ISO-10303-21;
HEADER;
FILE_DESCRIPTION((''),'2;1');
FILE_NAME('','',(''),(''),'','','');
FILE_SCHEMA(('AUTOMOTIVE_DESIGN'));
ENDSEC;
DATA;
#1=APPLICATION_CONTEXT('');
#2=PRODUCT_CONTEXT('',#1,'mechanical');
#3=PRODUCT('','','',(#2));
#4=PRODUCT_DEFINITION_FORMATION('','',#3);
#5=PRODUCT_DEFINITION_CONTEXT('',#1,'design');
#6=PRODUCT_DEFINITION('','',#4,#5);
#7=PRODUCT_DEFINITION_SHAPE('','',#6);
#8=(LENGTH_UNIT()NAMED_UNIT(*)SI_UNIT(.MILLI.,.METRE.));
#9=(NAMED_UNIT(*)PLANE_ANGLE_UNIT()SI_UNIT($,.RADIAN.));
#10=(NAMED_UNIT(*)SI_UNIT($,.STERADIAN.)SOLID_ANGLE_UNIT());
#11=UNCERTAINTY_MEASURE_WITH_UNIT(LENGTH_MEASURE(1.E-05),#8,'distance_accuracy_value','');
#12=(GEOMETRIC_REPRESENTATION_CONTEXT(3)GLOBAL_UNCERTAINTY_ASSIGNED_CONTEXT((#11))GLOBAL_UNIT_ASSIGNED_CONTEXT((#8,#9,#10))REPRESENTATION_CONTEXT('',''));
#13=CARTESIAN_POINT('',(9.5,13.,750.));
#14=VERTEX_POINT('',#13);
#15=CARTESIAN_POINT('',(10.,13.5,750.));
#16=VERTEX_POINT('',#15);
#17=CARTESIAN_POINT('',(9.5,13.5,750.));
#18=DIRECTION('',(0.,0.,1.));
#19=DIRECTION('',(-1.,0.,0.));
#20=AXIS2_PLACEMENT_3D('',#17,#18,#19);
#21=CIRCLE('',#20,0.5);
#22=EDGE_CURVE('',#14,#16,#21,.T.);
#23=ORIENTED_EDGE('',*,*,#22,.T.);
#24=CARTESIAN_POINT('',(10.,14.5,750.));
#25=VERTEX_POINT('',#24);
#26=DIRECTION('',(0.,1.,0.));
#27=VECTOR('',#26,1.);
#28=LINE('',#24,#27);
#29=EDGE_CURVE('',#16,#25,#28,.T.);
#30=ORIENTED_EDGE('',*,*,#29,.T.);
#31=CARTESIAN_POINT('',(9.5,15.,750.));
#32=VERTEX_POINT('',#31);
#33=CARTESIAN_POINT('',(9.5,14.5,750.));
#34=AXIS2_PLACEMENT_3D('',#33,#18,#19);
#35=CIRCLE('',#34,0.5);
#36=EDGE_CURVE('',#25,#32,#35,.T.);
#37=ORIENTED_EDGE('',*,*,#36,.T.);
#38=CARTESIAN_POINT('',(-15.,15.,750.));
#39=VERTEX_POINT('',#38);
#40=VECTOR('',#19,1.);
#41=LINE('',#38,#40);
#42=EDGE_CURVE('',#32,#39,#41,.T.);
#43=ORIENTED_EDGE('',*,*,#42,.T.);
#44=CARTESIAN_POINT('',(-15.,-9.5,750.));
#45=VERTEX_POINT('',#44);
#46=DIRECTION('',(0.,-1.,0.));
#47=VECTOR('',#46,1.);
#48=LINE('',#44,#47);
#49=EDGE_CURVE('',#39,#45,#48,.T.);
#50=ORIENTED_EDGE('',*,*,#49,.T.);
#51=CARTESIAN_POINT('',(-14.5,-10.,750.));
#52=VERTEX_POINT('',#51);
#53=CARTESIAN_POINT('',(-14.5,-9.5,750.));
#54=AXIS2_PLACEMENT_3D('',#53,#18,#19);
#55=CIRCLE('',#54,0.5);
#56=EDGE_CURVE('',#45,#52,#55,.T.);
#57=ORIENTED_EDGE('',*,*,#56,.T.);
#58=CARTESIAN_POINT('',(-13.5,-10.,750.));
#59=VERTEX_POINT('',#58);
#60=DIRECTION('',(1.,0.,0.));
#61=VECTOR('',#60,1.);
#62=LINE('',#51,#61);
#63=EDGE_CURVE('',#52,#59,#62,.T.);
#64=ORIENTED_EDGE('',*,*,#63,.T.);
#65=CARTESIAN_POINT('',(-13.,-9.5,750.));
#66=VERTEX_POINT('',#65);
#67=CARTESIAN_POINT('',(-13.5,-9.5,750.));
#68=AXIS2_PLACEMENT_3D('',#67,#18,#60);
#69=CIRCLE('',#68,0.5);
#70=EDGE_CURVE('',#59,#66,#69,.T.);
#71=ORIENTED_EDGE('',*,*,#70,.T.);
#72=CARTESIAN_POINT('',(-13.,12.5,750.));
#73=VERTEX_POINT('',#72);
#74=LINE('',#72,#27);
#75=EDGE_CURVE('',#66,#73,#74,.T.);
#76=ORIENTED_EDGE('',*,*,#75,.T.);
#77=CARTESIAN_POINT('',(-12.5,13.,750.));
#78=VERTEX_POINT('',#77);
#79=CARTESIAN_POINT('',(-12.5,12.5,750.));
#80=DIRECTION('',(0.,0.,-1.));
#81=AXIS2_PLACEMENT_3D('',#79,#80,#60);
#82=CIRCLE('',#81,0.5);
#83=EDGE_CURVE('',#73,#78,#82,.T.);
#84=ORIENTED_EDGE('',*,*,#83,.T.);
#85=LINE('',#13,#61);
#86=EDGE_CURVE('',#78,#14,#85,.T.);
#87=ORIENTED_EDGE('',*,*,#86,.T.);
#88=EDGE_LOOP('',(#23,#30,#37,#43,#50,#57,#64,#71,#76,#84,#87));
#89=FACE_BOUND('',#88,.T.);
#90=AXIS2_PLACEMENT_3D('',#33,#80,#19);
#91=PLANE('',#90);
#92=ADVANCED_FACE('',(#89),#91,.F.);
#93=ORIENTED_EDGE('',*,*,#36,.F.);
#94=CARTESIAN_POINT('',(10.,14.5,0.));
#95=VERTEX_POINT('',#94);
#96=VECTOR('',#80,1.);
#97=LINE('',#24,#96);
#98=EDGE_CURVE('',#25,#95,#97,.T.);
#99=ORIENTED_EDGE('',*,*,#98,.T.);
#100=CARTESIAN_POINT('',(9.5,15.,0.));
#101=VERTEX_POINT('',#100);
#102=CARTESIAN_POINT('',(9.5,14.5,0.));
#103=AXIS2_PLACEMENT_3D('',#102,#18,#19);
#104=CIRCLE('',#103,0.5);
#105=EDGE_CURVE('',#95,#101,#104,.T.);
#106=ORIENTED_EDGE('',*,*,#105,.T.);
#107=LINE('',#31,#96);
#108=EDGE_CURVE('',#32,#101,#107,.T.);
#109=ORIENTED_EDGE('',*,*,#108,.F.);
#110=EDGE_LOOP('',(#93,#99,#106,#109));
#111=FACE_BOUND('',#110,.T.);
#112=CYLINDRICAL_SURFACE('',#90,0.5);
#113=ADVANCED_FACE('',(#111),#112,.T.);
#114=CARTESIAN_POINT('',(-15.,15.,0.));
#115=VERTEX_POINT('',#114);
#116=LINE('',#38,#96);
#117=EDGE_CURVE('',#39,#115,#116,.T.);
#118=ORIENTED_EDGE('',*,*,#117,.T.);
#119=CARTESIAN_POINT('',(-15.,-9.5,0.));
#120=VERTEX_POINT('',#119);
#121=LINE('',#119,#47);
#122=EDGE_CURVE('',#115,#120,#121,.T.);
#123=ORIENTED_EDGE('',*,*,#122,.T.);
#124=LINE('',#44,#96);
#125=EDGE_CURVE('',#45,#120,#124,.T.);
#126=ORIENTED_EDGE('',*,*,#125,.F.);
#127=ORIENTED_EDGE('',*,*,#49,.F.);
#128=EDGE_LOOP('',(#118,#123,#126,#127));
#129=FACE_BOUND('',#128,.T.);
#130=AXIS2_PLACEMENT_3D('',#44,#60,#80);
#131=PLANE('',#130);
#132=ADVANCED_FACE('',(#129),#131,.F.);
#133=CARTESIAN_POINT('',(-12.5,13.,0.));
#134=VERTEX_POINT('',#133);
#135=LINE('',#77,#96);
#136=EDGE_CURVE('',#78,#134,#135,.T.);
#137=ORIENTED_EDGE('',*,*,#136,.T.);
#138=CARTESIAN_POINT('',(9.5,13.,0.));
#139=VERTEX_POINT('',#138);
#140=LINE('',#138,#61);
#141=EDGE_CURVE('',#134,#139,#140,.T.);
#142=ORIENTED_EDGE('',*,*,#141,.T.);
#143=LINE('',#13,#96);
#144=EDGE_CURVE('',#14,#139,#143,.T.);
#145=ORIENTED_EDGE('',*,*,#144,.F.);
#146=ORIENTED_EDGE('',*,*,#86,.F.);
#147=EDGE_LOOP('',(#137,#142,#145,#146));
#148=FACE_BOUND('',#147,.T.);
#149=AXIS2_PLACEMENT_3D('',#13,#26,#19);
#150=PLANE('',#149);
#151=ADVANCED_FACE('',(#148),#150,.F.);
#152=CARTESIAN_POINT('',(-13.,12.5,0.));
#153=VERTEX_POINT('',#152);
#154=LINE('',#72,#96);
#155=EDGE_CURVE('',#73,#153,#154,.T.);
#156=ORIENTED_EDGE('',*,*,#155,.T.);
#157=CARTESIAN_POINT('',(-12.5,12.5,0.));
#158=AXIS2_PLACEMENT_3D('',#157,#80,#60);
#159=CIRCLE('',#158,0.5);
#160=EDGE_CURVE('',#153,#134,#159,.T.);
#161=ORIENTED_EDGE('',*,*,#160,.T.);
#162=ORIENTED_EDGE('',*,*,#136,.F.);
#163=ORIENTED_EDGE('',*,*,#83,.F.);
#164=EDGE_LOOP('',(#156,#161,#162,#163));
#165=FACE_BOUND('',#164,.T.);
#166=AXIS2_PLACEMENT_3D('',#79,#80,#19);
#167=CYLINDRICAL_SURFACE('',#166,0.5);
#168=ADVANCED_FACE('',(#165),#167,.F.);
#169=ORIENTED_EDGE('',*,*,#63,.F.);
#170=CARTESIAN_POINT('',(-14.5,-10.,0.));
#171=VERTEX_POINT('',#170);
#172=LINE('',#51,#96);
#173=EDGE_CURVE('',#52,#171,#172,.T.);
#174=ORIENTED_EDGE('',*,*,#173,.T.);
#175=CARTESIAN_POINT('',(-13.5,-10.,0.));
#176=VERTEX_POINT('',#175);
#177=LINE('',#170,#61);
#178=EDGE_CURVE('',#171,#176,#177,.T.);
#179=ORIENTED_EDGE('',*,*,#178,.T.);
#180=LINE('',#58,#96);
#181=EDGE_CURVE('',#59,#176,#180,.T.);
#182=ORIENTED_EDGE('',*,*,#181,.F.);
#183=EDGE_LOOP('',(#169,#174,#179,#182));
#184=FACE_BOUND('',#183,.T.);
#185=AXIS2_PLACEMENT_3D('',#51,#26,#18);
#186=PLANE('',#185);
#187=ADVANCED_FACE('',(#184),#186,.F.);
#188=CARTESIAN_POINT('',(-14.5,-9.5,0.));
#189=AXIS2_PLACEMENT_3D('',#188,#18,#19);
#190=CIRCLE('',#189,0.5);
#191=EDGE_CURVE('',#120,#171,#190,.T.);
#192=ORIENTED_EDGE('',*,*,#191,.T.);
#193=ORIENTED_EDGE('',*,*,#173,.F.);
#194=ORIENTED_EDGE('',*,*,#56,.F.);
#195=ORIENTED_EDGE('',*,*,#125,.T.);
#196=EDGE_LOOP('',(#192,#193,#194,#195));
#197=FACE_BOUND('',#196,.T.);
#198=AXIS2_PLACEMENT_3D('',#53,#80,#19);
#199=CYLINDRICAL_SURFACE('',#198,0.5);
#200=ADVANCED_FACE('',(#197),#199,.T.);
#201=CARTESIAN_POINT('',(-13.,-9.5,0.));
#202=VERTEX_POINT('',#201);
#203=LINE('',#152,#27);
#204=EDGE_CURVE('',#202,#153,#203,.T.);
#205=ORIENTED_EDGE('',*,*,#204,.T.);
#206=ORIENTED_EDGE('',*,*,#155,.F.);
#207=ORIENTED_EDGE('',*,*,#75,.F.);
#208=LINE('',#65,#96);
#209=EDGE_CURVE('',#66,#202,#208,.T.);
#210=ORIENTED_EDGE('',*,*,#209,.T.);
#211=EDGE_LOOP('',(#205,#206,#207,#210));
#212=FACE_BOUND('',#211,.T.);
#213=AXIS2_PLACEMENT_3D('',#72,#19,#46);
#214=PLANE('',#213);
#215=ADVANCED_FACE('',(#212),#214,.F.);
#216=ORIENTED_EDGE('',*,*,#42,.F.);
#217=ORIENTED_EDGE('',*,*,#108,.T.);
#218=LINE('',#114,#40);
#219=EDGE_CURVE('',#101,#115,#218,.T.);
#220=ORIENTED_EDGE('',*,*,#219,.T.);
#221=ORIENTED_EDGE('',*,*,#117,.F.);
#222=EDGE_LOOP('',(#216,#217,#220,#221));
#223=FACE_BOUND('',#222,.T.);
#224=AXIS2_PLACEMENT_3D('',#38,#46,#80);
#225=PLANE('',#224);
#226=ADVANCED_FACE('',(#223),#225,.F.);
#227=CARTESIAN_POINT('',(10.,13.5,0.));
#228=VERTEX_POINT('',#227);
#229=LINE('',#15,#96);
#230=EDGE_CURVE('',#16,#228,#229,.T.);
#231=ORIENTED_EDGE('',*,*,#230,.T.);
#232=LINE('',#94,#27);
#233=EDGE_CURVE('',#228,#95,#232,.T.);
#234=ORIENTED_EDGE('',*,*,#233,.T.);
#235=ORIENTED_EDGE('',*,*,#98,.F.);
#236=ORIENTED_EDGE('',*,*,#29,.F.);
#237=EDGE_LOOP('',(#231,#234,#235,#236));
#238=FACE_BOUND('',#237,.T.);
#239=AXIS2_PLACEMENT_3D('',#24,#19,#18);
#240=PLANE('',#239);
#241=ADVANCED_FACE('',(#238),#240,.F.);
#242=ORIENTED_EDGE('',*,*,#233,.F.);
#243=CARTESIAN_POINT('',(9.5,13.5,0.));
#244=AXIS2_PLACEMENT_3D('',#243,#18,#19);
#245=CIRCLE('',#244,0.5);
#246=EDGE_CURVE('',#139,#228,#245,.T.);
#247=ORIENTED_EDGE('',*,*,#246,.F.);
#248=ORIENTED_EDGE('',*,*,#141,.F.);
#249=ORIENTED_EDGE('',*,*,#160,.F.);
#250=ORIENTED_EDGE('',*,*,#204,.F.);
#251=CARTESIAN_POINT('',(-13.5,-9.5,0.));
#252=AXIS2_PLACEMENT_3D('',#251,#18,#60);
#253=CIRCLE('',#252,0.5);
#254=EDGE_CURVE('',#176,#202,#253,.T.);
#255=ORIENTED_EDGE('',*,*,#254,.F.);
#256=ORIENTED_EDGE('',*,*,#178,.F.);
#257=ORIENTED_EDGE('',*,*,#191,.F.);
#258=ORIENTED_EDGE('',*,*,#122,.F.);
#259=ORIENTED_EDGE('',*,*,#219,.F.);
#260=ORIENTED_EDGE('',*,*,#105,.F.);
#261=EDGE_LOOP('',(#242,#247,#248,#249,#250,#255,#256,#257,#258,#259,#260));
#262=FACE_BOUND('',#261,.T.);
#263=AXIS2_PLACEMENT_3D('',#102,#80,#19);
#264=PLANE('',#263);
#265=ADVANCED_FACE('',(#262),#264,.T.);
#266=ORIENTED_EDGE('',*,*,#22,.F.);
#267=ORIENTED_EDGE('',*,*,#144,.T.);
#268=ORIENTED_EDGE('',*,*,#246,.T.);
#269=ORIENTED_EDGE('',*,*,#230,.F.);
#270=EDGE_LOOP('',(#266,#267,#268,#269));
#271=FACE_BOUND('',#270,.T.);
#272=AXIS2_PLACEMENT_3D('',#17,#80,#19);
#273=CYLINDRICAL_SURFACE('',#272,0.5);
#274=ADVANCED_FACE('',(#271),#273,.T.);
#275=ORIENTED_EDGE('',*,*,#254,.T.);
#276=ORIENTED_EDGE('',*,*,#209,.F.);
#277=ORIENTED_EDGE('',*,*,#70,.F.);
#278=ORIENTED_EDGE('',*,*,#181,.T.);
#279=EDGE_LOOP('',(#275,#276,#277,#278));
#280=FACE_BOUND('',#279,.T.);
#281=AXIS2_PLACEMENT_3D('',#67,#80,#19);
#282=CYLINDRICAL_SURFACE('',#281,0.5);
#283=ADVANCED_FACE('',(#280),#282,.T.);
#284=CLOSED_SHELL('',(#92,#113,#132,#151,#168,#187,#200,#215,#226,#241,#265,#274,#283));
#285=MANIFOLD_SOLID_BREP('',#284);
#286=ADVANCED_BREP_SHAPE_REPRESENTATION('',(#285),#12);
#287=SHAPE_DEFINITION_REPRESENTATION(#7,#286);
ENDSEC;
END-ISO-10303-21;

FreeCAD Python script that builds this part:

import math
import FreeCAD as App
import Part
import Sketcher
from FreeCAD import Vector

doc = App.newDocument("Part")
body = doc.addObject("PartDesign::Body", "Body")

# Sketch on XY plane
sketch1 = body.newObject("Sketcher::SketchObject", "Sketch")
sketch1.AttachmentSupport = (doc.getObject("XY_Plane"), [""])
sketch1.MapMode = "FlatFace"
sketch1.addGeometry([
    Part.LineSegment(Vector(10, 13.5, 0), Vector(10, 14.5, 0)),  # 0
    Part.ArcOfCircle(Part.Circle(Vector(9.5, 14.5, 0), Vector(0, 0, 1), 0.5), math.radians(0), math.radians(90)),  # 1
    Part.LineSegment(Vector(9.5, 15, 0), Vector(-15, 15, 0)),  # 2
    Part.LineSegment(Vector(-15, 15, 0), Vector(-15, -9.5, 0)),  # 3
    Part.ArcOfCircle(Part.Circle(Vector(-14.5, -9.5, 0), Vector(0, 0, 1), 0.5), math.radians(180), math.radians(270)),  # 4
    Part.LineSegment(Vector(-14.5, -10, 0), Vector(-13.5, -10, 0)),  # 5
    Part.ArcOfCircle(Part.Circle(Vector(-13.5, -9.5, 0), Vector(0, 0, 1), 0.5), math.radians(-90), math.radians(0)),  # 6
    Part.LineSegment(Vector(-13, -9.5, 0), Vector(-13, 12.5, 0)),  # 7
    Part.ArcOfCircle(Part.Circle(Vector(-12.5, 12.5, 0), Vector(0, 0, 1), 0.5), math.radians(90), math.radians(180)),  # 8
    Part.LineSegment(Vector(-12.5, 13, 0), Vector(9.5, 13, 0)),  # 9
    Part.ArcOfCircle(Part.Circle(Vector(9.5, 13.5, 0), Vector(0, 0, 1), 0.5), math.radians(-90), math.radians(0)),  # 10
], False)
sketch1.addConstraint([
    Sketcher.Constraint("Tangent", 0, 2, 1, 1),
    Sketcher.Constraint("Tangent", 1, 2, 2, 1),
    Sketcher.Constraint("Coincident", 2, 2, 3, 1),
    Sketcher.Constraint("Tangent", 3, 2, 4, 1),
    Sketcher.Constraint("Tangent", 4, 2, 5, 1),
    Sketcher.Constraint("Tangent", 5, 2, 6, 1),
    Sketcher.Constraint("Tangent", 6, 2, 7, 1),
    Sketcher.Constraint("Tangent", 7, 2, 8, 2),
    Sketcher.Constraint("Tangent", 8, 1, 9, 1),
    Sketcher.Constraint("Tangent", 9, 2, 10, 1),
    Sketcher.Constraint("Tangent", 10, 2, 0, 1),
    Sketcher.Constraint("Vertical", 0),
    Sketcher.Constraint("Horizontal", 2),
    Sketcher.Constraint("Vertical", 3),
    Sketcher.Constraint("Horizontal", 5),
    Sketcher.Constraint("Vertical", 7),
    Sketcher.Constraint("Horizontal", 9),
    Sketcher.Constraint("Equal", 1, 4),
    Sketcher.Constraint("Equal", 4, 6),
    Sketcher.Constraint("Equal", 6, 8),
    Sketcher.Constraint("Equal", 8, 10),
    Sketcher.Constraint("Equal", 5, 0),
    Sketcher.Constraint("Equal", 2, 3),
    Sketcher.Constraint("Radius", 1, 0.5),
    Sketcher.Constraint("DistanceX", 5, 1, 5, 2, 1.0),
    Sketcher.Constraint("DistanceX", 9, 1, 9, 2, 22.0),
    Sketcher.Constraint("DistanceX", -1, 1, 0, 2, 10.0),
    Sketcher.Constraint("DistanceY", -1, 1, 1, 2, 15.0),
])
pad1 = body.newObject("PartDesign::Pad", "Pad")
pad1.Profile = sketch1
pad1.Length = 750

doc.recompute()
